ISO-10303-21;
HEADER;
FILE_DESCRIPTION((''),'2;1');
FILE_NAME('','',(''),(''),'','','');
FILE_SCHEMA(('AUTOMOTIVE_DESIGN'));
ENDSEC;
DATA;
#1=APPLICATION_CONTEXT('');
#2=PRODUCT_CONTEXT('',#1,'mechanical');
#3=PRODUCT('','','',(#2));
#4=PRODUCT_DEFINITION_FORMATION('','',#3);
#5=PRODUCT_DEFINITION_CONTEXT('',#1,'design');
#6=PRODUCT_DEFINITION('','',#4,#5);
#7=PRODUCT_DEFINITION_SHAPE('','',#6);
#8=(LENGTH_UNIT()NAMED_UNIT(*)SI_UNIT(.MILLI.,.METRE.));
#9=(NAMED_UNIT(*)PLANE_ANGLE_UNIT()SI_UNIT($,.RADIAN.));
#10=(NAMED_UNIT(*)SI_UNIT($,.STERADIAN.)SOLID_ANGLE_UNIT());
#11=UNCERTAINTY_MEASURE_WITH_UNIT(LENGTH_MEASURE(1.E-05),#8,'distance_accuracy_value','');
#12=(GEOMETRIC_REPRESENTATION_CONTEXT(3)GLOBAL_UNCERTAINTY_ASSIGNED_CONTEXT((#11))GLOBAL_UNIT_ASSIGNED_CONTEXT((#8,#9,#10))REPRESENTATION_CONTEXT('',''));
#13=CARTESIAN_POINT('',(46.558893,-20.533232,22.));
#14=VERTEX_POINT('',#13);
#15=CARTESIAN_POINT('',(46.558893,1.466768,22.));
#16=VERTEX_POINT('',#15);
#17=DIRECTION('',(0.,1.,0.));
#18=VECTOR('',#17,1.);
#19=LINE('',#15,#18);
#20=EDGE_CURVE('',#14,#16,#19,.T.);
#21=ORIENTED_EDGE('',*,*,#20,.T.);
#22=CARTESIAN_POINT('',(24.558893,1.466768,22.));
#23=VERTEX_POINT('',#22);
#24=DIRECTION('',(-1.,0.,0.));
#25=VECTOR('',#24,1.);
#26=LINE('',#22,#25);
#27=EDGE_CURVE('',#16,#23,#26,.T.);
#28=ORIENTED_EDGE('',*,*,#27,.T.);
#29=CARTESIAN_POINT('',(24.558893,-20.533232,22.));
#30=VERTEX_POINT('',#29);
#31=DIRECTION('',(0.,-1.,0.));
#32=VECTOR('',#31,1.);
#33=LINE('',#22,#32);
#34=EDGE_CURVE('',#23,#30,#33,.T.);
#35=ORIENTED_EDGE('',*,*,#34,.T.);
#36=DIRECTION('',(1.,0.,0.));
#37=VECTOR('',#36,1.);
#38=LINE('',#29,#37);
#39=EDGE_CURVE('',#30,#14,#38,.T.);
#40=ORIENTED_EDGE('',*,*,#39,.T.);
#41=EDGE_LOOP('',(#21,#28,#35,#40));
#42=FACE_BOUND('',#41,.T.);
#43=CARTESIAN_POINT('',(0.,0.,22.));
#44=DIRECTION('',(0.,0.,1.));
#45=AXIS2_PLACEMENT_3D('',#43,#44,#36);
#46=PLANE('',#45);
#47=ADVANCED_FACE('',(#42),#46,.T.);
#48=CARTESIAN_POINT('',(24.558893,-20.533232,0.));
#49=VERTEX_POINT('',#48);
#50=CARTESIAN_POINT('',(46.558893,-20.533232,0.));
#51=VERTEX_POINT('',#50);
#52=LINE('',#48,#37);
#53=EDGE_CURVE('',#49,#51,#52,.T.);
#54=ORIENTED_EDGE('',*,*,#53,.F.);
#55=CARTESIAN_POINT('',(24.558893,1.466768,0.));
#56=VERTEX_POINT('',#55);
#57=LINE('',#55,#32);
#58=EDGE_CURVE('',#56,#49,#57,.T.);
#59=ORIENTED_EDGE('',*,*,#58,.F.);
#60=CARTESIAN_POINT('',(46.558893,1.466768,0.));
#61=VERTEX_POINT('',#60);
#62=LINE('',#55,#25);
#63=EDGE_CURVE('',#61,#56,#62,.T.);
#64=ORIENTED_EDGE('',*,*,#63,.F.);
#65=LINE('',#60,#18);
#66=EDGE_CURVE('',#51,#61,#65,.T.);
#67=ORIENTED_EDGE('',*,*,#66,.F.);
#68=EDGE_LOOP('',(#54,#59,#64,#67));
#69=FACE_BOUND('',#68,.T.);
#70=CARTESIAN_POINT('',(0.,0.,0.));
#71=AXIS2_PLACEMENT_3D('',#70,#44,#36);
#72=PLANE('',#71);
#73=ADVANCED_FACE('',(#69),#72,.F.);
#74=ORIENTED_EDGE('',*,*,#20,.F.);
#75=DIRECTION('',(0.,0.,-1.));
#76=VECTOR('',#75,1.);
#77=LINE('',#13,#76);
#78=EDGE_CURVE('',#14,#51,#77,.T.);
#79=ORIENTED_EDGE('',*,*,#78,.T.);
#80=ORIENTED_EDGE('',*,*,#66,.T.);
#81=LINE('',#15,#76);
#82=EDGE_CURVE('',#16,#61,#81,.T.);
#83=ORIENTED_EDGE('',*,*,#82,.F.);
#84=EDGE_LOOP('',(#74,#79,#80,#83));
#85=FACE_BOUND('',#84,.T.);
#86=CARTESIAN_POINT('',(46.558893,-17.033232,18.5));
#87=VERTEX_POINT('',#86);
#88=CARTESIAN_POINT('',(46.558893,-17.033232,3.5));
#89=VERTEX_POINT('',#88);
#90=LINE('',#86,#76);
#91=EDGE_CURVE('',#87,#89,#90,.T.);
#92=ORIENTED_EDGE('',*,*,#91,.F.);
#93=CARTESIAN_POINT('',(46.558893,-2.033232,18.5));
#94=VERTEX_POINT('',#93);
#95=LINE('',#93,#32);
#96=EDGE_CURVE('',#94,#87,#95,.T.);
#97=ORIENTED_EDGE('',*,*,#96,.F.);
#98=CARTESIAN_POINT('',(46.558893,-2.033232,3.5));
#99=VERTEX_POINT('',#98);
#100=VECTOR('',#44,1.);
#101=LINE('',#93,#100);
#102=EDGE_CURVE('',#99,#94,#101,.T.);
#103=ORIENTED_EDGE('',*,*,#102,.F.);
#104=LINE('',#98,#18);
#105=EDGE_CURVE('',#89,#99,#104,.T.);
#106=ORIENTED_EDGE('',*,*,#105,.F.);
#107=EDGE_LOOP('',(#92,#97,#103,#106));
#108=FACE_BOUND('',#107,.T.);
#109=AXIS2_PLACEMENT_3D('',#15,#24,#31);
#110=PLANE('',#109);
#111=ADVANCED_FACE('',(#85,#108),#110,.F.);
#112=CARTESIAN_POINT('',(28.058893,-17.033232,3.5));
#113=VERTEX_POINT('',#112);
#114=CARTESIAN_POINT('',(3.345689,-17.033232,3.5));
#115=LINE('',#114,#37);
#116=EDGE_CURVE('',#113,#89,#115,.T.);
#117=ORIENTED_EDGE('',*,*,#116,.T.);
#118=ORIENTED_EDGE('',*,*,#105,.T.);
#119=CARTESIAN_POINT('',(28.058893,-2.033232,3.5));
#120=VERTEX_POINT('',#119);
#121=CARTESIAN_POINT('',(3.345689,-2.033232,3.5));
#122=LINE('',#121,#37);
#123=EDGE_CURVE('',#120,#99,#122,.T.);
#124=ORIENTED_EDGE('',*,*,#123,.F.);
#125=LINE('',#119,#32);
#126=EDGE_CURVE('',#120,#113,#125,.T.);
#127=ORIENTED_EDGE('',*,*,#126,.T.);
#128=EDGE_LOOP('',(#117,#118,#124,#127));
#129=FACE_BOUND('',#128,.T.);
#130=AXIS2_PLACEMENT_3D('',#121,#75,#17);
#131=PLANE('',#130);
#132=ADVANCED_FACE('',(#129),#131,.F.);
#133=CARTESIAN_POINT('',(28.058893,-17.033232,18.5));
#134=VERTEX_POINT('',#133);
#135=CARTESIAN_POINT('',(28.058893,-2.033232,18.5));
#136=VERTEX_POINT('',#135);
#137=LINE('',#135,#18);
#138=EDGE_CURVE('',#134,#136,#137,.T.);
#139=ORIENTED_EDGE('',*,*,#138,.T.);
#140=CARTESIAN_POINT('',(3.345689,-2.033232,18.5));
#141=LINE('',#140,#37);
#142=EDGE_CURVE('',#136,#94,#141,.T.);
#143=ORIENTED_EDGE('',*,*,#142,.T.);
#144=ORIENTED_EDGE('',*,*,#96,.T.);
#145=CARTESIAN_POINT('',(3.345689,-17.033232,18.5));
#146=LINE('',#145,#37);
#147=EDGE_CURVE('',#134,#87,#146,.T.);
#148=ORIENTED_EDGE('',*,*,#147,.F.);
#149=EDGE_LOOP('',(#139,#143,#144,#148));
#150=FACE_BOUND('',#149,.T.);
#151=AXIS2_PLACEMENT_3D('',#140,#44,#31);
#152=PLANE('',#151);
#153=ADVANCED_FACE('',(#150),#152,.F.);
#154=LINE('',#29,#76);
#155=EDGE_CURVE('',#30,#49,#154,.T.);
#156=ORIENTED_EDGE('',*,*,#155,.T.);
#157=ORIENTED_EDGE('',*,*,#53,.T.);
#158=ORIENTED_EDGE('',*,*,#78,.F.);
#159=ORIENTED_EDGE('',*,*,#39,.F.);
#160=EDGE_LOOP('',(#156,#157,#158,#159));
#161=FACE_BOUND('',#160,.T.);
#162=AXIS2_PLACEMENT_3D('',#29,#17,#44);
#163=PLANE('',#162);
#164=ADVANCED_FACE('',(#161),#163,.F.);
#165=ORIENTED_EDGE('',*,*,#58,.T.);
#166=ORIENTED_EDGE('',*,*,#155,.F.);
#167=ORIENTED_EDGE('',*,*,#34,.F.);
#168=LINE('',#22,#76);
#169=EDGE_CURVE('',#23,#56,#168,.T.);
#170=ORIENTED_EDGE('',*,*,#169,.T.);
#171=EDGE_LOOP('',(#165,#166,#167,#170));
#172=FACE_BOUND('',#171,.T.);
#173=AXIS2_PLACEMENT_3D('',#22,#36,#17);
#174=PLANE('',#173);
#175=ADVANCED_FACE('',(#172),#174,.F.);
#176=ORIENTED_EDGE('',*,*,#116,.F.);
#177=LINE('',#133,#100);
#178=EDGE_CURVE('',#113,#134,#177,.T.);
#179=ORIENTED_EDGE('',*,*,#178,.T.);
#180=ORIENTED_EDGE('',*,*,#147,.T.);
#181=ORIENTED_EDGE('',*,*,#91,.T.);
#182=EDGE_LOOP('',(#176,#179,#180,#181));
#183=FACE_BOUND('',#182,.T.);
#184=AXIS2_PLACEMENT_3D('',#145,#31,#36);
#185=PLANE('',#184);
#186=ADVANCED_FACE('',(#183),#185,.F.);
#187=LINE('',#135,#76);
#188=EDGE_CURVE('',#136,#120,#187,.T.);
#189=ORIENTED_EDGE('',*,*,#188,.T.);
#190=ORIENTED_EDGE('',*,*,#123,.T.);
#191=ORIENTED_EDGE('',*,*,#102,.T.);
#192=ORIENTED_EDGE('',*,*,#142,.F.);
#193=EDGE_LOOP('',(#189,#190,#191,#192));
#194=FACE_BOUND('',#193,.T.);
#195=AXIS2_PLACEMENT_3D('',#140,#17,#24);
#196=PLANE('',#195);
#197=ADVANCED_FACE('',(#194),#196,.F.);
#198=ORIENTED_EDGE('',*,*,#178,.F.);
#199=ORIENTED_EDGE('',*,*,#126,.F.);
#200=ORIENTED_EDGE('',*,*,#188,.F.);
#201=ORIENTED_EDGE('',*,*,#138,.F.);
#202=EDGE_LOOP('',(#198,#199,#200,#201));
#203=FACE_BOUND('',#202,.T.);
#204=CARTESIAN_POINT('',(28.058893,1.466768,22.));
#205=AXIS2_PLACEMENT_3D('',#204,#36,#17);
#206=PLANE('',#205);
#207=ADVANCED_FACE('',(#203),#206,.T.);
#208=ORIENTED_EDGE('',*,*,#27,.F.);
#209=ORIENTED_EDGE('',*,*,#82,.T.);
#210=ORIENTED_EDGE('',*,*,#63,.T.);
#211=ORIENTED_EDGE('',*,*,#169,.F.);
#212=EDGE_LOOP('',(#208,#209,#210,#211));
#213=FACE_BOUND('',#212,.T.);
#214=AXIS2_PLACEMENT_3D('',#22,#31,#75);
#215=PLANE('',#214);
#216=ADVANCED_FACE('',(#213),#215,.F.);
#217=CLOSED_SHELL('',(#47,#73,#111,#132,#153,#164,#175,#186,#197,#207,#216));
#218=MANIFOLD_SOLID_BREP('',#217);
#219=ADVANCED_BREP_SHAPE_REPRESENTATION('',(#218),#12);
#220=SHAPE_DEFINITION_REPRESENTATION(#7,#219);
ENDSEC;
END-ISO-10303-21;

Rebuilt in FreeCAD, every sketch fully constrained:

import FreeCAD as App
import Part
import Sketcher


def add_polygon(sketch, points):
    """Adds a closed chain of lines whose ends are joined by coincident constraints."""
    first, n = sketch.GeometryCount, len(points)
    for a, b in zip(points, points[1:] + points[:1]):
        sketch.addGeometry(Part.LineSegment(App.Vector(*a, 0), App.Vector(*b, 0)), False)
    for i in range(n):
        sketch.addConstraint(Sketcher.Constraint("Coincident", first + i, 2, first + (i + 1) % n, 1))

doc = App.newDocument("Part")
body = doc.addObject("PartDesign::Body", "Body")

# Sketch on XY plane
sketch1 = body.newObject("Sketcher::SketchObject", "Sketch")
sketch1.AttachmentSupport = (doc.getObject("XY_Plane"), [""])
sketch1.MapMode = "FlatFace"
add_polygon(sketch1, [(25, 1), (25, -21), (47, -21), (47, 1)])  # lines 0-3
sketch1.addConstraint(Sketcher.Constraint("Vertical", 0))
sketch1.addConstraint(Sketcher.Constraint("Horizontal", 1))
sketch1.addConstraint(Sketcher.Constraint("Vertical", 2))
sketch1.addConstraint(Sketcher.Constraint("Horizontal", 3))
sketch1.addConstraint(Sketcher.Constraint("Equal", 3, 0))
sketch1.addConstraint(Sketcher.Constraint("DistanceX", 1, 1, 1, 2, 22.0))
sketch1.addConstraint(Sketcher.Constraint("DistanceX", -1, 1, 0, 2, 24.558893))
sketch1.addConstraint(Sketcher.Constraint("DistanceY", 0, 2, -1, 1, 20.533232))
pad1 = body.newObject("PartDesign::Pad", "Pad")
pad1.Profile = sketch1
pad1.Length = 22

# Sketch on YZ plane
sketch2 = body.newObject("Sketcher::SketchObject", "Sketch001")
sketch2.AttachmentSupport = (doc.getObject("YZ_Plane"), [""])
sketch2.MapMode = "FlatFace"
sketch2.AttachmentOffset = App.Placement(App.Vector(0, 0, 46.558893), App.Rotation())
add_polygon(sketch2, [(-2, 18), (-17, 18), (-17, 4), (-2, 4)])  # lines 0-3
sketch2.addConstraint(Sketcher.Constraint("Horizontal", 0))
sketch2.addConstraint(Sketcher.Constraint("Vertical", 1))
sketch2.addConstraint(Sketcher.Constraint("Horizontal", 2))
sketch2.addConstraint(Sketcher.Constraint("Vertical", 3))
sketch2.addConstraint(Sketcher.Constraint("Equal", 2, 1))
sketch2.addConstraint(Sketcher.Constraint("DistanceX", 0, 2, 0, 1, 15.0))
sketch2.addConstraint(Sketcher.Constraint("DistanceY", -1, 1, 0, 2, 18.5))
sketch2.addConstraint(Sketcher.Constraint("DistanceX", 0, 2, -1, 1, 17.033232))
pocket1 = body.newObject("PartDesign::Pocket", "Pocket")
pocket1.Profile = sketch2
pocket1.Length = 18.5

doc.recompute()
